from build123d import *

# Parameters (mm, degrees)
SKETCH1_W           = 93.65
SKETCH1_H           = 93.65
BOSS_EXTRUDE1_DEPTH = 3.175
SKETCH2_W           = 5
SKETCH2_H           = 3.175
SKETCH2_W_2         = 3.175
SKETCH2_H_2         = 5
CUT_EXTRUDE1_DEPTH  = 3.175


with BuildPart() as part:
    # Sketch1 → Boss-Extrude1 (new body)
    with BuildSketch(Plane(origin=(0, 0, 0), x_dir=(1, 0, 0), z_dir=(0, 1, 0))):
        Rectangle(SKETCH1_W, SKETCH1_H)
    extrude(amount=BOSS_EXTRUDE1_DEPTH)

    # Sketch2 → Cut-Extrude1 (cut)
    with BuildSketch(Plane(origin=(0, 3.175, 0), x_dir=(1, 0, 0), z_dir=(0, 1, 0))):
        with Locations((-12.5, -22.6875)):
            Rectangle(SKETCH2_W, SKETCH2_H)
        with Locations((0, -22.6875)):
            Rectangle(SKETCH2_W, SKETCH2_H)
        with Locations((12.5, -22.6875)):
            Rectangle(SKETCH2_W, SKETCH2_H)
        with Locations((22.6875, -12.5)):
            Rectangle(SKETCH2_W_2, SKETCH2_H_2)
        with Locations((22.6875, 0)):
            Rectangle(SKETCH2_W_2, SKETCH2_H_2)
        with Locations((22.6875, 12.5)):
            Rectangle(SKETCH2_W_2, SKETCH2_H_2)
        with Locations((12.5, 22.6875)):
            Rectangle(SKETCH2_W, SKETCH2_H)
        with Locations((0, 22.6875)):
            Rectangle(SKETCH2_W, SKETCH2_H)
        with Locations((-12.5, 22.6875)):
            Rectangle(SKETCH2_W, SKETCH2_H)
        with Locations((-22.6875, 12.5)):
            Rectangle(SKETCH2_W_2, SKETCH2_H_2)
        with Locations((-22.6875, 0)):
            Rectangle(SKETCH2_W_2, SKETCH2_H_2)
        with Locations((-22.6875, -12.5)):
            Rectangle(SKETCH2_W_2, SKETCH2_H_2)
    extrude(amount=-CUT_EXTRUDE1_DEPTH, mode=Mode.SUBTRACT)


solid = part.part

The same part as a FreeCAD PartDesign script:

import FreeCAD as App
import Part
import Sketcher

V = App.Vector


def add_polygon(sketch, points):
    """Adds a closed chain of lines whose ends are joined by coincident constraints."""
    first, n = sketch.GeometryCount, len(points)
    for a, b in zip(points, points[1:] + points[:1]):
        sketch.addGeometry(Part.LineSegment(App.Vector(*a, 0), App.Vector(*b, 0)), False)
    for i in range(n):
        sketch.addConstraint(Sketcher.Constraint("Coincident", first + i, 2, first + (i + 1) % n, 1))

doc = App.newDocument("Part")
body = doc.addObject("PartDesign::Body", "Body")

# Sketch on XZ plane
sketch1 = body.newObject("Sketcher::SketchObject", "Sketch")
sketch1.AttachmentSupport = (doc.getObject("XZ_Plane"), [""])
sketch1.MapMode = "FlatFace"
add_polygon(sketch1, [(-46.825, -46.825), (-46.825, 46.825), (46.825, 46.825), (46.825, -46.825)])  # lines 0-3
sketch1.addConstraint([
    Sketcher.Constraint("Vertical", 0),
    Sketcher.Constraint("Horizontal", 1),
    Sketcher.Constraint("Vertical", 2),
    Sketcher.Constraint("Horizontal", 3),
    Sketcher.Constraint("Symmetric", 0, 2, 2, 2, -1, 1),
    Sketcher.Constraint("Equal", 3, 0),
    Sketcher.Constraint("DistanceX", 1, 1, 1, 2, 93.65),
])
pad1 = body.newObject("PartDesign::Pad", "Pad")
pad1.Profile = sketch1
pad1.Length = 3.175
pad1.Reversed = True

# Sketch on XZ plane
sketch2 = body.newObject("Sketcher::SketchObject", "Sketch001")
sketch2.AttachmentSupport = (doc.getObject("XZ_Plane"), [""])
sketch2.MapMode = "FlatFace"
sketch2.AttachmentOffset = App.Placement(V(0, 0, -3.175), App.Rotation())
add_polygon(sketch2, [(-15, 21.1), (-15, 24.275), (-10, 24.275), (-10, 21.1)])  # lines 0-3
add_polygon(sketch2, [(-2.5, 21.1), (-2.5, 24.275), (2.5, 24.275), (2.5, 21.1)])  # lines 4-7
add_polygon(sketch2, [(10, 21.1), (10, 24.275), (15, 24.275), (15, 21.1)])  # lines 8-11
add_polygon(sketch2, [(21.1, 10), (21.1, 15), (24.275, 15), (24.275, 10)])  # lines 12-15
add_polygon(sketch2, [(21.1, -2.5), (21.1, 2.5), (24.275, 2.5), (24.275, -2.5)])  # lines 16-19
add_polygon(sketch2, [(21.1, -15), (21.1, -10), (24.275, -10), (24.275, -15)])  # lines 20-23
add_polygon(sketch2, [(10, -24.275), (10, -21.1), (15, -21.1), (15, -24.275)])  # lines 24-27
add_polygon(sketch2, [(-2.5, -24.275), (-2.5, -21.1), (2.5, -21.1), (2.5, -24.275)])  # lines 28-31
add_polygon(sketch2, [(-15, -24.275), (-15, -21.1), (-10, -21.1), (-10, -24.275)])  # lines 32-35
add_polygon(sketch2, [(-24.275, -15), (-24.275, -10), (-21.1, -10), (-21.1, -15)])  # lines 36-39
add_polygon(sketch2, [(-24.275, -2.5), (-24.275, 2.5), (-21.1, 2.5), (-21.1, -2.5)])  # lines 40-43
add_polygon(sketch2, [(-24.275, 10), (-24.275, 15), (-21.1, 15), (-21.1, 10)])  # lines 44-47
sketch2.addConstraint([
    Sketcher.Constraint("Vertical", 0),
    Sketcher.Constraint("Horizontal", 1),
    Sketcher.Constraint("Vertical", 2),
    Sketcher.Constraint("Horizontal", 3),
    Sketcher.Constraint("Vertical", 4),
    Sketcher.Constraint("Horizontal", 5),
    Sketcher.Constraint("Vertical", 6),
    Sketcher.Constraint("Horizontal", 7),
    Sketcher.Constraint("Vertical", 8),
    Sketcher.Constraint("Horizontal", 9),
    Sketcher.Constraint("Vertical", 10),
    Sketcher.Constraint("Horizontal", 11),
    Sketcher.Constraint("Vertical", 12),
    Sketcher.Constraint("Horizontal", 13),
    Sketcher.Constraint("Vertical", 14),
    Sketcher.Constraint("Horizontal", 15),
    Sketcher.Constraint("Vertical", 16),
    Sketcher.Constraint("Horizontal", 17),
    Sketcher.Constraint("Vertical", 18),
    Sketcher.Constraint("Horizontal", 19),
    Sketcher.Constraint("Vertical", 20),
    Sketcher.Constraint("Horizontal", 21),
    Sketcher.Constraint("Vertical", 22),
    Sketcher.Constraint("Horizontal", 23),
    Sketcher.Constraint("Vertical", 24),
    Sketcher.Constraint("Horizontal", 25),
    Sketcher.Constraint("Vertical", 26),
    Sketcher.Constraint("Horizontal", 27),
    Sketcher.Constraint("Vertical", 28),
    Sketcher.Constraint("Horizontal", 29),
    Sketcher.Constraint("Vertical", 30),
    Sketcher.Constraint("Horizontal", 31),
    Sketcher.Constraint("Vertical", 32),
    Sketcher.Constraint("Horizontal", 33),
    Sketcher.Constraint("Vertical", 34),
    Sketcher.Constraint("Horizontal", 35),
    Sketcher.Constraint("Vertical", 36),
    Sketcher.Constraint("Horizontal", 37),
    Sketcher.Constraint("Vertical", 38),
    Sketcher.Constraint("Horizontal", 39),
    Sketcher.Constraint("Vertical", 40),
    Sketcher.Constraint("Horizontal", 41),
    Sketcher.Constraint("Vertical", 42),
    Sketcher.Constraint("Horizontal", 43),
    Sketcher.Constraint("Vertical", 44),
    Sketcher.Constraint("Horizontal", 45),
    Sketcher.Constraint("Vertical", 46),
    Sketcher.Constraint("Horizontal", 47),
    Sketcher.Constraint("Symmetric", 2, 2, 24, 2, -1, 1),
    Sketcher.Constraint("Symmetric", 0, 2, 26, 2, -1, 1),
    Sketcher.Constraint("Symmetric", 6, 2, 28, 2, -1, 1),
    Sketcher.Constraint("Symmetric", 4, 2, 30, 2, -1, 1),
    Sketcher.Constraint("Symmetric", 10, 2, 32, 2, -1, 1),
    Sketcher.Constraint("Symmetric", 8, 2, 34, 2, -1, 1),
    Sketcher.Constraint("Symmetric", 14, 2, 36, 2, -1, 1),
    Sketcher.Constraint("Symmetric", 12, 2, 38, 2, -1, 1),
    Sketcher.Constraint("Symmetric", 18, 2, 40, 2, -1, 1),
    Sketcher.Constraint("Symmetric", 16, 2, 42, 2, -1, 1),
    Sketcher.Constraint("Symmetric", 22, 2, 44, 2, -1, 1),
    Sketcher.Constraint("Symmetric", 20, 2, 46, 2, -1, 1),
    Sketcher.Constraint("Symmetric", 1, 2, 8, 2, -2),
    Sketcher.Constraint("Symmetric", 3, 2, 10, 2, -2),
    Sketcher.Constraint("Symmetric", 21, 2, 36, 2, -2),
    Sketcher.Constraint("Symmetric", 23, 2, 38, 2, -2),
    Sketcher.Constraint("Horizontal", 1, 2, 4, 2),
    Sketcher.Constraint("Horizontal", 3, 2, 6, 2),
    Sketcher.Constraint("Horizontal", 17, 2, 40, 2),
    Sketcher.Constraint("Vertical", 15, 2, 16, 2),
    Sketcher.Constraint("Vertical", 14, 2, 17, 2),
    Sketcher.Constraint("Vertical", 7, 2, 28, 2),
    Sketcher.Constraint("Equal", 3, 5),
    Sketcher.Constraint("Equal", 47, 0),
    Sketcher.Constraint("Equal", 35, 12),
    Sketcher.Constraint("Equal", 14, 16),
    Sketcher.Constraint("DistanceX", 1, 1, 1, 2, 5.0),
    Sketcher.Constraint("DistanceX", 0, 2, -1, 1, 15.0),
    Sketcher.Constraint("DistanceY", -1, 1, 12, 2, 15.0),
    Sketcher.Constraint("DistanceY", -1, 1, 2, 2, 21.1),
    Sketcher.Constraint("DistanceX", -1, 1, 12, 2, 21.1),
    Sketcher.Constraint("DistanceX", 13, 1, 13, 2, 3.175),
])
pocket1 = body.newObject("PartDesign::Pocket", "Pocket")
pocket1.Profile = sketch2
pocket1.Length = 3.175
pocket1.Reversed = True

doc.recompute()
